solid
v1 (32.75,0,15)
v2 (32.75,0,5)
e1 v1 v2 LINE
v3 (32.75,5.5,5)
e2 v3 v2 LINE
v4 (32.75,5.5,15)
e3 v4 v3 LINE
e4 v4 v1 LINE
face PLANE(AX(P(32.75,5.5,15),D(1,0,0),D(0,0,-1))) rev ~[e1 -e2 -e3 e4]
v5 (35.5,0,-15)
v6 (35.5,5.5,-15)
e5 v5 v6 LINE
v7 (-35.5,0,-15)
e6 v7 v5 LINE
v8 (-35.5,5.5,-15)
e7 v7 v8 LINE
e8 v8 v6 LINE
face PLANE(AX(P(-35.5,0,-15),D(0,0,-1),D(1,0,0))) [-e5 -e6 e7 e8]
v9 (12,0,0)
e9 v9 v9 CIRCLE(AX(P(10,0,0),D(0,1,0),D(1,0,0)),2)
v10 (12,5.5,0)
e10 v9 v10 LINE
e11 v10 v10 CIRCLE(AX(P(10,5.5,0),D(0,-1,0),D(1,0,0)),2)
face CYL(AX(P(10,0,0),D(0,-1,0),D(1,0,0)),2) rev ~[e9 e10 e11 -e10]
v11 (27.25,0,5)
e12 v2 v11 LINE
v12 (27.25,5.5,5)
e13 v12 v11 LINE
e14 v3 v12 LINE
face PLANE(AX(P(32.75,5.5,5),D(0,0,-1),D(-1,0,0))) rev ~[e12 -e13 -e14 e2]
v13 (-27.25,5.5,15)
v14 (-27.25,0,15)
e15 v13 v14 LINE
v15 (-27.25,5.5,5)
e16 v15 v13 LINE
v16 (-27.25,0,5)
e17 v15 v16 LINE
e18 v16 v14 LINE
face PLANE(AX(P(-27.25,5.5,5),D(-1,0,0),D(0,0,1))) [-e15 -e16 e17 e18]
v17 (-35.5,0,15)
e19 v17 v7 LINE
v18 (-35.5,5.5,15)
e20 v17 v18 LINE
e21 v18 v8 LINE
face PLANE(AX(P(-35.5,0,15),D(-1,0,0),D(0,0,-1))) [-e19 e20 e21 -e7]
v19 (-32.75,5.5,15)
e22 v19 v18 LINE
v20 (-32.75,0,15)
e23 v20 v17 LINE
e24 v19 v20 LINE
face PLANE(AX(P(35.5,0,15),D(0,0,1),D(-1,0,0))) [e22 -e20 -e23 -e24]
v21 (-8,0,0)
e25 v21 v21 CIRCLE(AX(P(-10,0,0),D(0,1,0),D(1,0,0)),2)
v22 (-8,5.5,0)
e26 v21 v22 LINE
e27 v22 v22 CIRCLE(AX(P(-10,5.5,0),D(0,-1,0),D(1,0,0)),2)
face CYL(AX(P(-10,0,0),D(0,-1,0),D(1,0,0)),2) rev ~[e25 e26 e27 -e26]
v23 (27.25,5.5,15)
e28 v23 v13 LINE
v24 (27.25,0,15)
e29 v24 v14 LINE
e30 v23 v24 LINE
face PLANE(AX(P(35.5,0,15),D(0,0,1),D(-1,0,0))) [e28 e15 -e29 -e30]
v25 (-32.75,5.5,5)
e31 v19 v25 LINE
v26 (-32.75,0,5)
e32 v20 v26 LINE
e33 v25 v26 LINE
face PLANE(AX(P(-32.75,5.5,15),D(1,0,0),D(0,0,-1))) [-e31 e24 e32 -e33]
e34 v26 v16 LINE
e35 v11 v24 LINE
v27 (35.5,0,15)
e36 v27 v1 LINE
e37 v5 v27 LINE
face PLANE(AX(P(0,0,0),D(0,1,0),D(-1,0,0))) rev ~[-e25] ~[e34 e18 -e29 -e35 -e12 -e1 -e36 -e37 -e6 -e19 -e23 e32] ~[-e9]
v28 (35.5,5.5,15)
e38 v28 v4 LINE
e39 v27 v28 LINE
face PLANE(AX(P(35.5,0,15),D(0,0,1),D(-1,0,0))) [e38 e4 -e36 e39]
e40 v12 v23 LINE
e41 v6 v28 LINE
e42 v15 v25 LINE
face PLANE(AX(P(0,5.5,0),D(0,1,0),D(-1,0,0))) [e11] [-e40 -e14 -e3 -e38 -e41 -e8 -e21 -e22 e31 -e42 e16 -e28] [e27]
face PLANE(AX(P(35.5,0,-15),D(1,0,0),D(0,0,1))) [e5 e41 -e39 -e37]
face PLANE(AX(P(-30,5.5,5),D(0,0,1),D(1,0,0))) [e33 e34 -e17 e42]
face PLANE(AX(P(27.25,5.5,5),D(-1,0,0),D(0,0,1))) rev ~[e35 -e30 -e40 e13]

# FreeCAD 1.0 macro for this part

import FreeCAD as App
import Part
import Sketcher

V = App.Vector

doc = App.newDocument("Part")
params = doc.addObject("Spreadsheet::Sheet", "Params")
for row, (alias, value) in enumerate([
    ("sketch1_width", "71 mm"),
    ("sketch1_height", "30 mm"),
    ("pad1_length", "5.5 mm"),
    ("sketch2_height", "10 mm"),
    ("sketch2_width", "5.5 mm"),
    ("sketch3_diameter", "4 mm"),
], start=1):
    params.set(f"A{row}", alias)
    params.set(f"B{row}", "=" + value)
    params.setAlias(f"B{row}", alias)

body = doc.addObject("PartDesign::Body", "Body")

# Sketch on XZ plane
sketch1 = body.newObject("Sketcher::SketchObject", "Sketch")
sketch1.AttachmentSupport = (doc.getObject("XZ_Plane"), [""])
sketch1.MapMode = "FlatFace"
sketch1.addGeometry(Part.LineSegment(V(36, -15, 0), V(-36, -15, 0)), False)
sketch1.addGeometry(Part.LineSegment(V(-36, -15, 0), V(-36, 15, 0)), False)
sketch1.addGeometry(Part.LineSegment(V(-36, 15, 0), V(36, 15, 0)), False)
sketch1.addGeometry(Part.LineSegment(V(36, 15, 0), V(36, -15, 0)), False)
sketch1.addConstraint(Sketcher.Constraint("Coincident", 0, 2, 1, 1))
sketch1.addConstraint(Sketcher.Constraint("Coincident", 1, 2, 2, 1))
sketch1.addConstraint(Sketcher.Constraint("Coincident", 2, 2, 3, 1))
sketch1.addConstraint(Sketcher.Constraint("Coincident", 3, 2, 0, 1))
sketch1.addConstraint(Sketcher.Constraint("Horizontal", 0))
sketch1.addConstraint(Sketcher.Constraint("Vertical", 1))
sketch1.addConstraint(Sketcher.Constraint("Horizontal", 2))
sketch1.addConstraint(Sketcher.Constraint("Vertical", 3))
sketch1.addConstraint(Sketcher.Constraint("Symmetric", 0, 2, 2, 2, -1, 1))
sketch1.addConstraint(Sketcher.Constraint("DistanceX", 0, 2, 0, 1, 71.0))
sketch1.addConstraint(Sketcher.Constraint("DistanceY", 1, 1, 1, 2, 30.0))
sketch1.setExpression("Constraints[9]", "Params.sketch1_width")
sketch1.setExpression("Constraints[10]", "Params.sketch1_height")
pad1 = body.newObject("PartDesign::Pad", "Pad")
pad1.Profile = sketch1
pad1.setExpression("Length", "Params.pad1_length")
pad1.Reversed = True

# Sketch on XZ plane
sketch2 = body.newObject("Sketcher::SketchObject", "Sketch001")
sketch2.AttachmentSupport = (doc.getObject("XZ_Plane"), [""])
sketch2.MapMode = "FlatFace"
sketch2.AttachmentOffset = App.Placement(V(0, 0, -5.5), App.Rotation())
sketch2.addGeometry(Part.LineSegment(V(27, 5, 0), V(27, 15, 0)), False)
sketch2.addGeometry(Part.LineSegment(V(27, 15, 0), V(33, 15, 0)), False)
sketch2.addGeometry(Part.LineSegment(V(33, 15, 0), V(33, 5, 0)), False)
sketch2.addGeometry(Part.LineSegment(V(33, 5, 0), V(27, 5, 0)), False)
sketch2.addGeometry(Part.LineSegment(V(-27, 15, 0), V(-27, 5, 0)), False)
sketch2.addGeometry(Part.LineSegment(V(-27, 5, 0), V(-33, 5, 0)), False)
sketch2.addGeometry(Part.LineSegment(V(-33, 5, 0), V(-33, 15, 0)), False)
sketch2.addGeometry(Part.LineSegment(V(-33, 15, 0), V(-27, 15, 0)), False)
sketch2.addConstraint(Sketcher.Constraint("Coincident", 0, 2, 1, 1))
sketch2.addConstraint(Sketcher.Constraint("Coincident", 1, 2, 2, 1))
sketch2.addConstraint(Sketcher.Constraint("Coincident", 2, 2, 3, 1))
sketch2.addConstraint(Sketcher.Constraint("Coincident", 3, 2, 0, 1))
sketch2.addConstraint(Sketcher.Constraint("Coincident", 4, 2, 5, 1))
sketch2.addConstraint(Sketcher.Constraint("Coincident", 5, 2, 6, 1))
sketch2.addConstraint(Sketcher.Constraint("Coincident", 6, 2, 7, 1))
sketch2.addConstraint(Sketcher.Constraint("Coincident", 7, 2, 4, 1))
sketch2.addConstraint(Sketcher.Constraint("Vertical", 0))
sketch2.addConstraint(Sketcher.Constraint("Horizontal", 1))
sketch2.addConstraint(Sketcher.Constraint("Vertical", 2))
sketch2.addConstraint(Sketcher.Constraint("Horizontal", 3))
sketch2.addConstraint(Sketcher.Constraint("Vertical", 4))
sketch2.addConstraint(Sketcher.Constraint("Horizontal", 5))
sketch2.addConstraint(Sketcher.Constraint("Vertical", 6))
sketch2.addConstraint(Sketcher.Constraint("Horizontal", 7))
sketch2.addConstraint(Sketcher.Constraint("Symmetric", 3, 2, 4, 2, -2))
sketch2.addConstraint(Sketcher.Constraint("Symmetric", 1, 2, 6, 2, -2))
sketch2.addConstraint(Sketcher.Constraint("DistanceY", 0, 1, 0, 2, 10.0))
sketch2.addConstraint(Sketcher.Constraint("DistanceX", 1, 1, 1, 2, 5.5))
sketch2.addConstraint(Sketcher.Constraint("DistanceY", -1, 1, 0, 2, 15.0))
sketch2.addConstraint(Sketcher.Constraint("DistanceX", 4, 2, 2, 2, 60.0))
sketch2.setExpression("Constraints[18]", "Params.sketch2_height")
sketch2.setExpression("Constraints[19]", "Params.sketch2_width")
pocket1 = body.newObject("PartDesign::Pocket", "Pocket")
pocket1.Profile = sketch2
pocket1.Type = "ThroughAll"
pocket1.Reversed = True

# Sketch on XZ plane
sketch3 = body.newObject("Sketcher::SketchObject", "Sketch002")
sketch3.AttachmentSupport = (doc.getObject("XZ_Plane"), [""])
sketch3.MapMode = "FlatFace"
sketch3.addGeometry(Part.Circle(V(-10, 0, 0), V(0, 0, 1), 2), False)
sketch3.addGeometry(Part.Circle(V(10, 0, 0), V(0, 0, 1), 2), False)
sketch3.addConstraint(Sketcher.Constraint("Equal", 0, 1))
sketch3.addConstraint(Sketcher.Constraint("Symmetric", 0, 3, 1, 3, -1, 1))
sketch3.addConstraint(Sketcher.Constraint("PointOnObject", 0, 3, -1))
sketch3.addConstraint(Sketcher.Constraint("Diameter", 0, 4.0))
sketch3.addConstraint(Sketcher.Constraint("DistanceX", 0, 3, 1, 3, 20.0))
sketch3.setExpression("Constraints[3]", "Params.sketch3_diameter")
pocket2 = body.newObject("PartDesign::Pocket", "Pocket001")
pocket2.Profile = sketch3
pocket2.Type = "ThroughAll"

doc.recompute()
